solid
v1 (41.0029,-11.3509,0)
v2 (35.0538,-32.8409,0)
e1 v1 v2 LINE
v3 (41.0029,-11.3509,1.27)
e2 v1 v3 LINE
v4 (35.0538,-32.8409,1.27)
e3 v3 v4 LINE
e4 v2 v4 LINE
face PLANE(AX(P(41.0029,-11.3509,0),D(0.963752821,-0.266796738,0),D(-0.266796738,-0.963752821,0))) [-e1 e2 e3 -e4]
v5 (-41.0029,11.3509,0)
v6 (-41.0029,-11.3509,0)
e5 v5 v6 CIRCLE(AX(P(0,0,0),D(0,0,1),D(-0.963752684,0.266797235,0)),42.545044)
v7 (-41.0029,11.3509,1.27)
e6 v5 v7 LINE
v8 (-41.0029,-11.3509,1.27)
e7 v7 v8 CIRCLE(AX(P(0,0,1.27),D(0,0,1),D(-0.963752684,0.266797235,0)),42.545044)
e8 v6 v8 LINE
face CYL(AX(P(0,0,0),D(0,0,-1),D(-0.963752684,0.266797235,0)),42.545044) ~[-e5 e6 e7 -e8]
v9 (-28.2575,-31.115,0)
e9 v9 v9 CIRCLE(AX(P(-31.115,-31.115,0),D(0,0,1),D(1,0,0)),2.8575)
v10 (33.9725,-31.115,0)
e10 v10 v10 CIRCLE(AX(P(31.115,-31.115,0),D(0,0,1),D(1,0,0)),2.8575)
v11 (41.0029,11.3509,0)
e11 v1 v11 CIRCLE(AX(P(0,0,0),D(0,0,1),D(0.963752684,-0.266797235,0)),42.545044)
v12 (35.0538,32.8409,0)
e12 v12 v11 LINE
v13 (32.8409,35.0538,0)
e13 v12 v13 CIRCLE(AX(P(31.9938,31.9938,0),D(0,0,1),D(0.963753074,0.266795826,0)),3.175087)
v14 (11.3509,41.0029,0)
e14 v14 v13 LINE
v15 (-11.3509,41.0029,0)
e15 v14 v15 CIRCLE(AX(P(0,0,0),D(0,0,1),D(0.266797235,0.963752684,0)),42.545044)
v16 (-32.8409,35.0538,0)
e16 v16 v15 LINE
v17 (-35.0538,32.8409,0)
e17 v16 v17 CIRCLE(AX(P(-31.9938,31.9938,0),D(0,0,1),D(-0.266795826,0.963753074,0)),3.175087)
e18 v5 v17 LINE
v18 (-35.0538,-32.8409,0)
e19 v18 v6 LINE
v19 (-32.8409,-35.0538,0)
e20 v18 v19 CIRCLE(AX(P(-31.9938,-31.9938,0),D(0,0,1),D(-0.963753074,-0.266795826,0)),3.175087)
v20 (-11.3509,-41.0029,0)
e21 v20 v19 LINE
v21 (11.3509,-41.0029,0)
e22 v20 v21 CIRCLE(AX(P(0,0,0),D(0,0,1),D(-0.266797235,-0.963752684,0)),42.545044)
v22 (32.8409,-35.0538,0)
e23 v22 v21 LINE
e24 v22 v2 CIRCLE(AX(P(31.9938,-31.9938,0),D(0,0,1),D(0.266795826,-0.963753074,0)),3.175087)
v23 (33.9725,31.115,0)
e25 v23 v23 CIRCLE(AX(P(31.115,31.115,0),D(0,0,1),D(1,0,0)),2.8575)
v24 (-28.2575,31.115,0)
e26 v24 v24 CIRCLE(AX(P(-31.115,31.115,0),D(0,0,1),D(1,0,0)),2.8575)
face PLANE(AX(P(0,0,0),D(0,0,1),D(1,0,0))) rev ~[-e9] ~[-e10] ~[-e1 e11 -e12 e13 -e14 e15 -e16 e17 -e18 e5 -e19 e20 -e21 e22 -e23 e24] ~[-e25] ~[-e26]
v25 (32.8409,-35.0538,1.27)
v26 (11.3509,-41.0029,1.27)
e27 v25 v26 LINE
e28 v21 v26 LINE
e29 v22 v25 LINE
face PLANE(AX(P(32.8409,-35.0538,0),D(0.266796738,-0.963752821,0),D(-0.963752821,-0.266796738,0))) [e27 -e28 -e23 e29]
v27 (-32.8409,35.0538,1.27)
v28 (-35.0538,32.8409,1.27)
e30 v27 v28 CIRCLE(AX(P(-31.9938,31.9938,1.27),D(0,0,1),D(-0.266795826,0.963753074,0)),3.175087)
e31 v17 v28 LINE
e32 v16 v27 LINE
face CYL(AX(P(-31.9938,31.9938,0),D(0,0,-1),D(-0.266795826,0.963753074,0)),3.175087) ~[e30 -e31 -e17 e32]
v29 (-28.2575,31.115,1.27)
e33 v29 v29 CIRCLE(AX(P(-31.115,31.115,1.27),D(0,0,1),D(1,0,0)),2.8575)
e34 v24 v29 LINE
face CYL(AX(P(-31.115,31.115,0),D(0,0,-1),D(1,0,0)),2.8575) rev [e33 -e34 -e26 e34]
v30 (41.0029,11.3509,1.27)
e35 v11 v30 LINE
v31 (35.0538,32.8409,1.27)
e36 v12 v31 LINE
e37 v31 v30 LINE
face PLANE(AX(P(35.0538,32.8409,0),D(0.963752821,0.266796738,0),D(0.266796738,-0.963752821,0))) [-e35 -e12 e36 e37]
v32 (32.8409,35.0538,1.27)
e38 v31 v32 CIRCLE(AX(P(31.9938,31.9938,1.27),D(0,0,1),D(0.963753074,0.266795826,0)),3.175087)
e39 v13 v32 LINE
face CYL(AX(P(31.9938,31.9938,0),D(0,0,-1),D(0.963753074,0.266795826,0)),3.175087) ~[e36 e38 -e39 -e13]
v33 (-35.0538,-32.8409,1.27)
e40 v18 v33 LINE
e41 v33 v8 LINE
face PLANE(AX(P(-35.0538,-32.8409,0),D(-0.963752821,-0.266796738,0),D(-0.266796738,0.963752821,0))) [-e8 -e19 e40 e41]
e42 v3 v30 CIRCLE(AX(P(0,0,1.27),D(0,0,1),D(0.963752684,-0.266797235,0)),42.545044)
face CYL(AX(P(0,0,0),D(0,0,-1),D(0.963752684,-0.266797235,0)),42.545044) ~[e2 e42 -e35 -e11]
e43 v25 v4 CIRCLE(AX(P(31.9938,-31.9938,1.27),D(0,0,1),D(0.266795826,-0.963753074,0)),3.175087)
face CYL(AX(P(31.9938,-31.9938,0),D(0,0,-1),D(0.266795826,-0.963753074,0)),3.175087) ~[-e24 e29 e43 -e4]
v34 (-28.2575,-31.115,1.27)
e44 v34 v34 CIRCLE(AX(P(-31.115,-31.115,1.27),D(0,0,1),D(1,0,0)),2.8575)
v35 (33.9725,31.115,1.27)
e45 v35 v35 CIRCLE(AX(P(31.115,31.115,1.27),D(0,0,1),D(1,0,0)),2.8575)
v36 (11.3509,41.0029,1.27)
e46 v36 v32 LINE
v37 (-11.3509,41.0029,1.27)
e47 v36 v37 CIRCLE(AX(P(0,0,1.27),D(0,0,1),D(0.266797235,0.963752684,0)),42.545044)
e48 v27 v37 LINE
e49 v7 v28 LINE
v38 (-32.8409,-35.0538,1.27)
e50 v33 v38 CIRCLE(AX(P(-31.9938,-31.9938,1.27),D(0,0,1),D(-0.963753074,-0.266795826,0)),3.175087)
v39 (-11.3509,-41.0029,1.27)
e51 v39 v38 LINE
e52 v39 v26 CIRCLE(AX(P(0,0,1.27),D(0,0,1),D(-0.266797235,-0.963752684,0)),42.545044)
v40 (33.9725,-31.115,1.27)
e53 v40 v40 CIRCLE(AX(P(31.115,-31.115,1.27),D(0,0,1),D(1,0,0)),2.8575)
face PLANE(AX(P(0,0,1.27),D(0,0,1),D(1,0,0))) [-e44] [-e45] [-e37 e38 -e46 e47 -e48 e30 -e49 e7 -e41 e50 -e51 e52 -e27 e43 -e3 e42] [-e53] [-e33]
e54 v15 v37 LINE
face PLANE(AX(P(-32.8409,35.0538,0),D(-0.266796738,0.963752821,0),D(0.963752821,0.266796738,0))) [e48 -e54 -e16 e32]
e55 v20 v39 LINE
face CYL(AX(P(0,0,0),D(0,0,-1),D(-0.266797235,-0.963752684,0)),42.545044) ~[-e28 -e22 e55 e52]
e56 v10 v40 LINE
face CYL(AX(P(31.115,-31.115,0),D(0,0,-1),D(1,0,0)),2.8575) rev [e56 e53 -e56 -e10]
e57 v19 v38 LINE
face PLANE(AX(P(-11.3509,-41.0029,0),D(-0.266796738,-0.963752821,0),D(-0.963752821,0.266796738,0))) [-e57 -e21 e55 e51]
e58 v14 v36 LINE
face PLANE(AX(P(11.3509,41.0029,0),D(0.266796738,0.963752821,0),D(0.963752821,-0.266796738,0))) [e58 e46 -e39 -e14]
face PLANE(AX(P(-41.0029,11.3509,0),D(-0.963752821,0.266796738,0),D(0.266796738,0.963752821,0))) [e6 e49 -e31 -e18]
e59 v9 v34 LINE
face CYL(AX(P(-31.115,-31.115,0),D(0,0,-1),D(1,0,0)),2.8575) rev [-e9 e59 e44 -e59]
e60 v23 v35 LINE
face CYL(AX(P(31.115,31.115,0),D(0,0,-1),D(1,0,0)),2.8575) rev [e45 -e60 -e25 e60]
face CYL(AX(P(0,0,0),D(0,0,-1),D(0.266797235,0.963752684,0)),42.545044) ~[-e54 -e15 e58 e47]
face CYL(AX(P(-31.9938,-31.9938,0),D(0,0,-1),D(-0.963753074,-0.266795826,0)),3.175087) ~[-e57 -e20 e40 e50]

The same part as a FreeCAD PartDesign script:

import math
import FreeCAD as App
import Part
import Sketcher
Q = App.Units.Quantity

doc = App.newDocument("Part")
body = doc.addObject("PartDesign::Body", "Body")

# Sketch on XY plane
sketch1 = body.newObject("Sketcher::SketchObject", "Sketch")
sketch1.AttachmentSupport = (doc.getObject("XY_Plane"), [""])
sketch1.MapMode = "FlatFace"
sketch1.addGeometry(Part.LineSegment(App.Vector(41, 11.4, 0), App.Vector(35.1, 32.8, 0)), False)
sketch1.addGeometry(Part.ArcOfCircle(Part.Circle(App.Vector(32, 32, 0), App.Vector(0, 0, 1), 3.2), math.radians(15), math.radians(75)), False)
sketch1.addGeometry(Part.LineSegment(App.Vector(32.8, 35.1, 0), App.Vector(11.4, 41, 0)), False)
sketch1.addGeometry(Part.ArcOfCircle(Part.Circle(App.Vector(0, 0, 0), App.Vector(0, 0, 1), 42.5), math.radians(75), math.radians(105)), False)
sketch1.addGeometry(Part.LineSegment(App.Vector(-11.4, 41, 0), App.Vector(-32.8, 35.1, 0)), False)
sketch1.addGeometry(Part.ArcOfCircle(Part.Circle(App.Vector(-32, 32, 0), App.Vector(0, 0, 1), 3.2), math.radians(105), math.radians(165)), False)
sketch1.addGeometry(Part.LineSegment(App.Vector(-35.1, 32.8, 0), App.Vector(-41, 11.4, 0)), False)
sketch1.addGeometry(Part.ArcOfCircle(Part.Circle(App.Vector(0, 0, 0), App.Vector(0, 0, 1), 42.5), math.radians(165), math.radians(195)), False)
sketch1.addGeometry(Part.LineSegment(App.Vector(-41, -11.4, 0), App.Vector(-35.1, -32.8, 0)), False)
sketch1.addGeometry(Part.ArcOfCircle(Part.Circle(App.Vector(-32, -32, 0), App.Vector(0, 0, 1), 3.2), math.radians(-165), math.radians(-105)), False)
sketch1.addGeometry(Part.LineSegment(App.Vector(-32.8, -35.1, 0), App.Vector(-11.4, -41, 0)), False)
sketch1.addGeometry(Part.ArcOfCircle(Part.Circle(App.Vector(0, 0, 0), App.Vector(0, 0, 1), 42.5), math.radians(-105), math.radians(-75)), False)
sketch1.addGeometry(Part.LineSegment(App.Vector(11.4, -41, 0), App.Vector(32.8, -35.1, 0)), False)
sketch1.addGeometry(Part.ArcOfCircle(Part.Circle(App.Vector(32, -32, 0), App.Vector(0, 0, 1), 3.2), math.radians(-75), math.radians(-15)), False)
sketch1.addGeometry(Part.LineSegment(App.Vector(35.1, -32.8, 0), App.Vector(41, -11.4, 0)), False)
sketch1.addGeometry(Part.ArcOfCircle(Part.Circle(App.Vector(0, 0, 0), App.Vector(0, 0, 1), 42.5), math.radians(-15), math.radians(15)), False)
sketch1.addGeometry(Part.Circle(App.Vector(-31.1, -31.1, 0), App.Vector(0, 0, 1), 2.9), False)
sketch1.addGeometry(Part.Circle(App.Vector(31.1, -31.1, 0), App.Vector(0, 0, 1), 2.9), False)
sketch1.addGeometry(Part.Circle(App.Vector(-31.1, 31.1, 0), App.Vector(0, 0, 1), 2.9), False)
sketch1.addGeometry(Part.Circle(App.Vector(31.1, 31.1, 0), App.Vector(0, 0, 1), 2.9), False)
sketch1.addConstraint(Sketcher.Constraint("Tangent", 0, 2, 1, 1))
sketch1.addConstraint(Sketcher.Constraint("Tangent", 1, 2, 2, 1))
sketch1.addConstraint(Sketcher.Constraint("Tangent", 2, 2, 3, 1))
sketch1.addConstraint(Sketcher.Constraint("Tangent", 3, 2, 4, 1))
sketch1.addConstraint(Sketcher.Constraint("Tangent", 4, 2, 5, 1))
sketch1.addConstraint(Sketcher.Constraint("Tangent", 5, 2, 6, 1))
sketch1.addConstraint(Sketcher.Constraint("Tangent", 6, 2, 7, 1))
sketch1.addConstraint(Sketcher.Constraint("Tangent", 7, 2, 8, 1))
sketch1.addConstraint(Sketcher.Constraint("Tangent", 8, 2, 9, 1))
sketch1.addConstraint(Sketcher.Constraint("Tangent", 9, 2, 10, 1))
sketch1.addConstraint(Sketcher.Constraint("Tangent", 10, 2, 11, 1))
sketch1.addConstraint(Sketcher.Constraint("Tangent", 11, 2, 12, 1))
sketch1.addConstraint(Sketcher.Constraint("Tangent", 12, 2, 13, 1))
sketch1.addConstraint(Sketcher.Constraint("Tangent", 13, 2, 14, 1))
sketch1.addConstraint(Sketcher.Constraint("Tangent", 14, 2, 15, 1))
sketch1.addConstraint(Sketcher.Constraint("Tangent", 15, 2, 0, 1))
sketch1.addConstraint(Sketcher.Constraint("Coincident", 3, 3, -1, 1))
sketch1.addConstraint(Sketcher.Constraint("Coincident", 7, 3, -1, 1))
sketch1.addConstraint(Sketcher.Constraint("Coincident", 11, 3, -1, 1))
sketch1.addConstraint(Sketcher.Constraint("Coincident", 15, 3, -1, 1))
sketch1.addConstraint(Sketcher.Constraint("Equal", 1, 5))
sketch1.addConstraint(Sketcher.Constraint("Equal", 3, 7))
sketch1.addConstraint(Sketcher.Constraint("Equal", 5, 9))
sketch1.addConstraint(Sketcher.Constraint("Equal", 7, 11))
sketch1.addConstraint(Sketcher.Constraint("Equal", 9, 13))
sketch1.addConstraint(Sketcher.Constraint("Equal", 11, 15))
sketch1.addConstraint(Sketcher.Constraint("Equal", 16, 17))
sketch1.addConstraint(Sketcher.Constraint("Equal", 17, 18))
sketch1.addConstraint(Sketcher.Constraint("Equal", 18, 19))
sketch1.addConstraint(Sketcher.Constraint("Symmetric", 1, 3, 9, 3, -1, 1))
sketch1.addConstraint(Sketcher.Constraint("Symmetric", 5, 3, 13, 3, -1, 1))
sketch1.addConstraint(Sketcher.Constraint("Symmetric", 17, 3, 18, 3, -1, 1))
sketch1.addConstraint(Sketcher.Constraint("Symmetric", 16, 3, 19, 3, -1, 1))
sketch1.addConstraint(Sketcher.Constraint("Symmetric", 1, 3, 5, 3, -2))
sketch1.addConstraint(Sketcher.Constraint("Symmetric", 16, 3, 17, 3, -2))
sketch1.addConstraint(Sketcher.Constraint("Perpendicular", 0, 4))
sketch1.addConstraint(Sketcher.Constraint("Diameter", 16, Q("0.225 in")))
sketch1.addConstraint(Sketcher.Constraint("Radius", 1, Q("0.125 in")))
sketch1.addConstraint(Sketcher.Constraint("Radius", 3, Q("1.675 in")))
sketch1.addConstraint(Sketcher.Constraint("DistanceX", 16, 3, -1, 1, Q("1.225 in")))
sketch1.addConstraint(Sketcher.Constraint("DistanceY", 16, 3, -1, 1, Q("1.225 in")))
sketch1.addConstraint(Sketcher.Constraint("DistanceX", -1, 1, 1, 3, Q("1.2596 in")))
pad1 = body.newObject("PartDesign::Pad", "Pad")
pad1.Profile = sketch1
pad1.Length = Q("0.05 in")

doc.recompute()
